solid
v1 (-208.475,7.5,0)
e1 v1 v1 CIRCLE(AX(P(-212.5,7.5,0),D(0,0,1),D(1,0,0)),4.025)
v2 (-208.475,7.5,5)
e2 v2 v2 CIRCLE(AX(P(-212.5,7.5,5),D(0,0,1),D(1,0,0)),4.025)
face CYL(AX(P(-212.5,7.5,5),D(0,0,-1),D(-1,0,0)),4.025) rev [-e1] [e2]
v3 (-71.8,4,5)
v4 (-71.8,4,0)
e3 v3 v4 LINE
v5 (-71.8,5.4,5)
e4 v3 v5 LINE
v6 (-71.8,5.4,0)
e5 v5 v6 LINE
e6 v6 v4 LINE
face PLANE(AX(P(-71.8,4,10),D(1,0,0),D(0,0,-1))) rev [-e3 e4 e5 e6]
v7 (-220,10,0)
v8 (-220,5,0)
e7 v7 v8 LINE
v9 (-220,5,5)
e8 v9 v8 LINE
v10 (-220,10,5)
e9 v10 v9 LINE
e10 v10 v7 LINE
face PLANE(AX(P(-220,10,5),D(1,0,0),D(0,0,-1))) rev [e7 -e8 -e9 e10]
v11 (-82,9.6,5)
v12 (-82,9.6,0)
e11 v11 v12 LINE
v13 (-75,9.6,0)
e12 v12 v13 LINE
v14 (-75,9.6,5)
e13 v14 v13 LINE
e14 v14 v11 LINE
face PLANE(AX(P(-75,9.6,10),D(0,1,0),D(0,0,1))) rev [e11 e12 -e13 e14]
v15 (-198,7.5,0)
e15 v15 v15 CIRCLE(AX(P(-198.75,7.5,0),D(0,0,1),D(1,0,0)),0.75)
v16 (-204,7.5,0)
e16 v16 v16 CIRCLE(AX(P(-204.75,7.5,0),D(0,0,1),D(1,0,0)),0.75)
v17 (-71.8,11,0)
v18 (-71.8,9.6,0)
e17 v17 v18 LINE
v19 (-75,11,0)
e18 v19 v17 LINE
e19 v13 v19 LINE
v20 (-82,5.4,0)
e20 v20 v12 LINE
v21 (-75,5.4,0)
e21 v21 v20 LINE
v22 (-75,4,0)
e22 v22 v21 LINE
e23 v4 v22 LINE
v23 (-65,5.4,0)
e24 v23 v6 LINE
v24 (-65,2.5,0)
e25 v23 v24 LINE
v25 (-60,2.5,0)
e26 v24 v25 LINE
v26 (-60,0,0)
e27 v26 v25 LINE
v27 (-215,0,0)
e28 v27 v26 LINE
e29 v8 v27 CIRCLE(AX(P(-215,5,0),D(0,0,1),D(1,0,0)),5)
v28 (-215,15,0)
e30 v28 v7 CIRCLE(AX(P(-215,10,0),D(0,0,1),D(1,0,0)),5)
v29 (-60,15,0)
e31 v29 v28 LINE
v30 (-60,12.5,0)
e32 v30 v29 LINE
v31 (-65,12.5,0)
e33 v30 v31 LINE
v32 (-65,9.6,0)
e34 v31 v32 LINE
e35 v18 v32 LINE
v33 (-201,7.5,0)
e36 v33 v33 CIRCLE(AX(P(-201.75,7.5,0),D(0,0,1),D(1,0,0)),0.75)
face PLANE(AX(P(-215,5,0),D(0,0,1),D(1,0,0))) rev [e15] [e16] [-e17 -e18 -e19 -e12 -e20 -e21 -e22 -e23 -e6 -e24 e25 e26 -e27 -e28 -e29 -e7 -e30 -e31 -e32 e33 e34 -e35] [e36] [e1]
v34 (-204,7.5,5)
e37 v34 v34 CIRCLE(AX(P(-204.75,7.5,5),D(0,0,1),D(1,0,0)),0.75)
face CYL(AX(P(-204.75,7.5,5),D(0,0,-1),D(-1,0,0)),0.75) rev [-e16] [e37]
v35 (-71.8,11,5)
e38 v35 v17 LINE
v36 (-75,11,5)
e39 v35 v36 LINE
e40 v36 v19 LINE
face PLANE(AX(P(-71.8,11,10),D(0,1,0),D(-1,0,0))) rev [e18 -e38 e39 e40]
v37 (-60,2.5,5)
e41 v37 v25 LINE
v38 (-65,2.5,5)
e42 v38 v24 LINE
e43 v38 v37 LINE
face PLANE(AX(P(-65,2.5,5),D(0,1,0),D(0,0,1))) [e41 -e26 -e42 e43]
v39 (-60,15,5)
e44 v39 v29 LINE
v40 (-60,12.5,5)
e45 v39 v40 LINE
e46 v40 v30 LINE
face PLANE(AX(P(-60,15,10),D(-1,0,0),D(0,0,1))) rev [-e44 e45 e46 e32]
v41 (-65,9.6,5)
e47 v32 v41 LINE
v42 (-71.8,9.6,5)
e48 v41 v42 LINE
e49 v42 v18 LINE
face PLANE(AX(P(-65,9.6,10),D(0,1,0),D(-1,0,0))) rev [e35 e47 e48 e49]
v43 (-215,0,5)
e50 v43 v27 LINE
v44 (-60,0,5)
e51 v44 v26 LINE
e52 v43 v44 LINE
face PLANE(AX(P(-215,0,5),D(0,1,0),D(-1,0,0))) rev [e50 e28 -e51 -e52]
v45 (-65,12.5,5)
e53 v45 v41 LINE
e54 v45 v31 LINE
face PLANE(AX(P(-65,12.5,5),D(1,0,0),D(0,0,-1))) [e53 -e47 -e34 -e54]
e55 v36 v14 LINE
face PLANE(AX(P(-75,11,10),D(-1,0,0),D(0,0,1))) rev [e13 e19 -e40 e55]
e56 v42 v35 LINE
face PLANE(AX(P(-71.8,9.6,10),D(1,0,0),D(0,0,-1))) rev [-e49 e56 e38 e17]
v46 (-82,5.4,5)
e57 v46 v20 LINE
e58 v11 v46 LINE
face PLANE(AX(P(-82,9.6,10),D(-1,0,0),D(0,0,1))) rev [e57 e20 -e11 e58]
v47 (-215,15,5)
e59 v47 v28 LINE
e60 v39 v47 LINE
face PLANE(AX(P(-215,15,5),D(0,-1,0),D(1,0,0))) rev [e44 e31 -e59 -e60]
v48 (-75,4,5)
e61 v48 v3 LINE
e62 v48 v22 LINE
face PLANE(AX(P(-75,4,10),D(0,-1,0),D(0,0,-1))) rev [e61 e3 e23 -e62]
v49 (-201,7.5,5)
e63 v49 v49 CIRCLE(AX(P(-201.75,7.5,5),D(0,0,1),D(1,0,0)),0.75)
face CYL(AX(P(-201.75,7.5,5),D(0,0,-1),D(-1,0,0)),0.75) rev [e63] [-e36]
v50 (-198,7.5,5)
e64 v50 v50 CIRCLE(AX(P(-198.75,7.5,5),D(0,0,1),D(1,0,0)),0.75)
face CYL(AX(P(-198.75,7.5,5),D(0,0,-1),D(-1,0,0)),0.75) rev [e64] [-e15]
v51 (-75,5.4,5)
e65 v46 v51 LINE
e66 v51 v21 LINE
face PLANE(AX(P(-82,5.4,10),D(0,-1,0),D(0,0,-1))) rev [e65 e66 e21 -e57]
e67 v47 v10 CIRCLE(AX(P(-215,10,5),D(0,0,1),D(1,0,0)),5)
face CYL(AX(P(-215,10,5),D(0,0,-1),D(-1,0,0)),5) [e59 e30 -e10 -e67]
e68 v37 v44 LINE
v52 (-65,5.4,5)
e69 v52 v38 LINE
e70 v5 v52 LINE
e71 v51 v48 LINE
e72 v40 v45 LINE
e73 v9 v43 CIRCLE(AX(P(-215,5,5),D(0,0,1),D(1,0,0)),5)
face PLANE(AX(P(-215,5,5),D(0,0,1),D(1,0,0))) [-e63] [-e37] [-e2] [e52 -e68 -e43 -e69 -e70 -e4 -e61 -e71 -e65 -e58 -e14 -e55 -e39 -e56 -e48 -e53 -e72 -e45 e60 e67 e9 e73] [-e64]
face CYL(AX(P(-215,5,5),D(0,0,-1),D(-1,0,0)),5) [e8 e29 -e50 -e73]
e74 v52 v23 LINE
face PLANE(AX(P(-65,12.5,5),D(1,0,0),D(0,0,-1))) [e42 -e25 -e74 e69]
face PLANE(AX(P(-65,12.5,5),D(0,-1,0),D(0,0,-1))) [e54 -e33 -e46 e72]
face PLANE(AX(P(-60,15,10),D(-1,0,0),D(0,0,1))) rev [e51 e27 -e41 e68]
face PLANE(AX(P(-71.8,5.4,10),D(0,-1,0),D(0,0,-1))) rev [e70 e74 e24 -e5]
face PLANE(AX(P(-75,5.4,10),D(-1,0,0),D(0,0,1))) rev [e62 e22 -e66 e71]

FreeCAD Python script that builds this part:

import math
import FreeCAD as App
import Part
import Sketcher
Q = App.Units.Quantity

doc = App.newDocument("Part")
body = doc.addObject("PartDesign::Body", "Body")

sketch1 = doc.addObject("Sketcher::SketchObject", "Sketch")
body.addObject(sketch1)
sketch1.AttachmentSupport = (doc.XY_Plane, [""])
sketch1.MapMode = "FlatFace"
sketch1.addGeometry([
    Part.LineSegment(App.Vector(-60, 15, 0), App.Vector(-215, 15, 0)),
    Part.ArcOfCircle(Part.Circle(App.Vector(-215, 10, 0), App.Vector(0, 0, 1), 5), math.radians(90), math.radians(180)),
    Part.LineSegment(App.Vector(-220, 10, 0), App.Vector(-220, 5, 0)),
    Part.ArcOfCircle(Part.Circle(App.Vector(-215, 5, 0), App.Vector(0, 0, 1), 5), math.radians(180), math.radians(270)),
    Part.LineSegment(App.Vector(-215, 0, 0), App.Vector(-60, 0, 0)),
    Part.ArcOfCircle(Part.Circle(App.Vector(-60, 5, 0), App.Vector(0, 0, 1), 5), math.radians(-90), math.radians(0)),
    Part.LineSegment(App.Vector(-55, 5, 0), App.Vector(-55, 10, 0)),
    Part.ArcOfCircle(Part.Circle(App.Vector(-60, 10, 0), App.Vector(0, 0, 1), 5), math.radians(0), math.radians(90)),
    Part.LineSegment(App.Vector(-65, 2.5, 0), App.Vector(-65, 12.5, 0)),
    Part.LineSegment(App.Vector(-65, 12.5, 0), App.Vector(-60, 12.5, 0)),
    Part.LineSegment(App.Vector(-60, 12.5, 0), App.Vector(-60, 2.5, 0)),
    Part.LineSegment(App.Vector(-60, 2.5, 0), App.Vector(-65, 2.5, 0)),
    Part.Circle(App.Vector(-198.8, 7.5, 0), App.Vector(0, 0, 1), 0.8),
    Part.Circle(App.Vector(-201.8, 7.5, 0), App.Vector(0, 0, 1), 0.8),
    Part.Circle(App.Vector(-204.8, 7.5, 0), App.Vector(0, 0, 1), 0.8),
    Part.Circle(App.Vector(-212.5, 7.5, 0), App.Vector(0, 0, 1), 4),
], False)
sketch1.addConstraint([
    Sketcher.Constraint("Tangent", 0, 2, 1, 1),
    Sketcher.Constraint("Tangent", 1, 2, 2, 1),
    Sketcher.Constraint("Tangent", 2, 2, 3, 1),
    Sketcher.Constraint("Tangent", 3, 2, 4, 1),
    Sketcher.Constraint("Tangent", 4, 2, 5, 1),
    Sketcher.Constraint("Tangent", 5, 2, 6, 1),
    Sketcher.Constraint("Tangent", 6, 2, 7, 1),
    Sketcher.Constraint("Tangent", 7, 2, 0, 1),
    Sketcher.Constraint("Coincident", 8, 2, 9, 1),
    Sketcher.Constraint("Coincident", 9, 2, 10, 1),
    Sketcher.Constraint("Coincident", 10, 2, 11, 1),
    Sketcher.Constraint("Coincident", 11, 2, 8, 1),
    Sketcher.Constraint("Horizontal", 0),
    Sketcher.Constraint("Vertical", 2),
    Sketcher.Constraint("Horizontal", 4),
    Sketcher.Constraint("Vertical", 6),
    Sketcher.Constraint("Vertical", 8),
    Sketcher.Constraint("Horizontal", 9),
    Sketcher.Constraint("Vertical", 10),
    Sketcher.Constraint("Horizontal", 11),
    Sketcher.Constraint("Equal", 1, 3),
    Sketcher.Constraint("Equal", 3, 5),
    Sketcher.Constraint("Equal", 5, 7),
    Sketcher.Constraint("Equal", 12, 13),
    Sketcher.Constraint("Equal", 13, 14),
    Sketcher.Constraint("PointOnObject", 3, 2, -1),
    Sketcher.Constraint("Horizontal", 12, 3, 13, 3),
    Sketcher.Constraint("Horizontal", 13, 3, 14, 3),
    Sketcher.Constraint("Horizontal", 14, 3, 15, 3),
    Sketcher.Constraint("Vertical", 7, 2, 9, 2),
    Sketcher.Constraint("Equal", 11, 2),
    Sketcher.Constraint("Radius", 1, Q("5 mm")),
    Sketcher.Constraint("Diameter", 12, Q("1.5 mm")),
    Sketcher.Constraint("Diameter", 15, Q("8.05 mm")),
    Sketcher.Constraint("DistanceX", 0, 2, 0, 1, Q("155 mm")),
    Sketcher.Constraint("DistanceX", 9, 1, 9, 2, Q("5 mm")),
    Sketcher.Constraint("DistanceY", 8, 1, 8, 2, Q("10 mm")),
    Sketcher.Constraint("DistanceX", 1, 3, -1, 1, Q("215 mm")),
    Sketcher.Constraint("DistanceX", 13, 3, 12, 3, Q("3 mm")),
    Sketcher.Constraint("DistanceX", 14, 3, 13, 3, Q("3 mm")),
    Sketcher.Constraint("DistanceY", -1, 1, 12, 3, Q("7.5 mm")),
    Sketcher.Constraint("DistanceX", 15, 3, -1, 1, Q("212.5 mm")),
    Sketcher.Constraint("DistanceY", -1, 1, 8, 2, Q("12.5 mm")),
    Sketcher.Constraint("DistanceX", 12, 3, -1, 1, Q("198.75 mm")),
])
pad1 = doc.addObject("PartDesign::Pad", "Pad")
body.addObject(pad1)
pad1.Profile = sketch1
pad1.Length = 5

sketch2 = doc.addObject("Sketcher::SketchObject", "Sketch001")
body.addObject(sketch2)
sketch2.AttachmentSupport = (doc.XY_Plane, [""])
sketch2.MapMode = "FlatFace"
sketch2.addGeometry([
    Part.LineSegment(App.Vector(-71.8, 9.6, 0), App.Vector(-65, 9.6, 0)),
    Part.LineSegment(App.Vector(-65, 9.6, 0), App.Vector(-65, 5.4, 0)),
    Part.LineSegment(App.Vector(-65, 5.4, 0), App.Vector(-71.8, 5.4, 0)),
    Part.LineSegment(App.Vector(-71.8, 5.4, 0), App.Vector(-71.8, 4, 0)),
    Part.LineSegment(App.Vector(-71.8, 4, 0), App.Vector(-75, 4, 0)),
    Part.LineSegment(App.Vector(-75, 4, 0), App.Vector(-75, 5.4, 0)),
    Part.LineSegment(App.Vector(-75, 5.4, 0), App.Vector(-82, 5.4, 0)),
    Part.LineSegment(App.Vector(-82, 5.4, 0), App.Vector(-82, 9.6, 0)),
    Part.LineSegment(App.Vector(-82, 9.6, 0), App.Vector(-75, 9.6, 0)),
    Part.LineSegment(App.Vector(-75, 9.6, 0), App.Vector(-75, 11, 0)),
    Part.LineSegment(App.Vector(-75, 11, 0), App.Vector(-71.8, 11, 0)),
    Part.LineSegment(App.Vector(-71.8, 11, 0), App.Vector(-71.8, 9.6, 0)),
], False)
sketch2.addConstraint([
    Sketcher.Constraint("Coincident", 0, 2, 1, 1),
    Sketcher.Constraint("Coincident", 1, 2, 2, 1),
    Sketcher.Constraint("Coincident", 2, 2, 3, 1),
    Sketcher.Constraint("Coincident", 3, 2, 4, 1),
    Sketcher.Constraint("Coincident", 4, 2, 5, 1),
    Sketcher.Constraint("Coincident", 5, 2, 6, 1),
    Sketcher.Constraint("Coincident", 6, 2, 7, 1),
    Sketcher.Constraint("Coincident", 7, 2, 8, 1),
    Sketcher.Constraint("Coincident", 8, 2, 9, 1),
    Sketcher.Constraint("Coincident", 9, 2, 10, 1),
    Sketcher.Constraint("Coincident", 10, 2, 11, 1),
    Sketcher.Constraint("Coincident", 11, 2, 0, 1),
    Sketcher.Constraint("Horizontal", 0),
    Sketcher.Constraint("Vertical", 1),
    Sketcher.Constraint("Horizontal", 2),
    Sketcher.Constraint("Vertical", 3),
    Sketcher.Constraint("Horizontal", 4),
    Sketcher.Constraint("Vertical", 5),
    Sketcher.Constraint("Horizontal", 6),
    Sketcher.Constraint("Vertical", 7),
    Sketcher.Constraint("Horizontal", 8),
    Sketcher.Constraint("Vertical", 9),
    Sketcher.Constraint("Horizontal", 10),
    Sketcher.Constraint("Vertical", 11),
    Sketcher.Constraint("Horizontal", 2, 2, 5, 2),
    Sketcher.Constraint("Horizontal", 0, 2, 7, 2),
    Sketcher.Constraint("Vertical", 5, 2, 8, 2),
    Sketcher.Constraint("Vertical", 3, 2, 10, 2),
    Sketcher.Constraint("Equal", 5, 9),
    Sketcher.Constraint("DistanceX", 6, 2, 6, 1, Q("7 mm")),
    Sketcher.Constraint("DistanceX", 0, 1, 0, 2, Q("6.8 mm")),
    Sketcher.Constraint("DistanceX", 4, 2, 4, 1, Q("3.2 mm")),
    Sketcher.Constraint("DistanceY", 1, 2, 1, 1, Q("4.2 mm")),
    Sketcher.Constraint("DistanceY", 3, 2, 3, 1, Q("1.4 mm")),
    Sketcher.Constraint("DistanceX", 0, 2, -1, 1, Q("65 mm")),
    Sketcher.Constraint("DistanceY", -1, 1, 3, 2, Q("4 mm")),
])
pocket1 = doc.addObject("PartDesign::Pocket", "Pocket")
body.addObject(pocket1)
pocket1.Profile = sketch2
pocket1.Length = 10
pocket1.Reversed = True

sketch3 = doc.addObject("Sketcher::SketchObject", "Sketch002")
body.addObject(sketch3)
sketch3.AttachmentSupport = (doc.XY_Plane, [""])
sketch3.MapMode = "FlatFace"
sketch3.addGeometry([
    Part.LineSegment(App.Vector(-60, 0, 0), App.Vector(-60, 15, 0)),
    Part.ArcOfCircle(Part.Circle(App.Vector(-60, 10, 0), App.Vector(0, 0, 1), 5), math.radians(0), math.radians(90)),
    Part.LineSegment(App.Vector(-55, 10, 0), App.Vector(-55, 5, 0)),
    Part.ArcOfCircle(Part.Circle(App.Vector(-60, 5, 0), App.Vector(0, 0, 1), 5), math.radians(-90), math.radians(0)),
], False)
sketch3.addConstraint([
    Sketcher.Constraint("Coincident", 0, 2, 1, 2),
    Sketcher.Constraint("Tangent", 1, 1, 2, 1),
    Sketcher.Constraint("Tangent", 2, 2, 3, 2),
    Sketcher.Constraint("Coincident", 3, 1, 0, 1),
    Sketcher.Constraint("Vertical", 0),
    Sketcher.Constraint("Vertical", 2),
    Sketcher.Constraint("Equal", 1, 3),
    Sketcher.Constraint("PointOnObject", 3, 1, -1),
    Sketcher.Constraint("Vertical", 3, 3, 0, 2),
    Sketcher.Constraint("Radius", 1, Q("5 mm")),
    Sketcher.Constraint("DistanceY", 0, 1, 0, 2, Q("15 mm")),
    Sketcher.Constraint("DistanceX", 1, 3, -1, 1, Q("60 mm")),
])
pocket2 = doc.addObject("PartDesign::Pocket", "Pocket001")
body.addObject(pocket2)
pocket2.Profile = sketch3
pocket2.Length = 10
pocket2.Reversed = True

doc.recompute()
